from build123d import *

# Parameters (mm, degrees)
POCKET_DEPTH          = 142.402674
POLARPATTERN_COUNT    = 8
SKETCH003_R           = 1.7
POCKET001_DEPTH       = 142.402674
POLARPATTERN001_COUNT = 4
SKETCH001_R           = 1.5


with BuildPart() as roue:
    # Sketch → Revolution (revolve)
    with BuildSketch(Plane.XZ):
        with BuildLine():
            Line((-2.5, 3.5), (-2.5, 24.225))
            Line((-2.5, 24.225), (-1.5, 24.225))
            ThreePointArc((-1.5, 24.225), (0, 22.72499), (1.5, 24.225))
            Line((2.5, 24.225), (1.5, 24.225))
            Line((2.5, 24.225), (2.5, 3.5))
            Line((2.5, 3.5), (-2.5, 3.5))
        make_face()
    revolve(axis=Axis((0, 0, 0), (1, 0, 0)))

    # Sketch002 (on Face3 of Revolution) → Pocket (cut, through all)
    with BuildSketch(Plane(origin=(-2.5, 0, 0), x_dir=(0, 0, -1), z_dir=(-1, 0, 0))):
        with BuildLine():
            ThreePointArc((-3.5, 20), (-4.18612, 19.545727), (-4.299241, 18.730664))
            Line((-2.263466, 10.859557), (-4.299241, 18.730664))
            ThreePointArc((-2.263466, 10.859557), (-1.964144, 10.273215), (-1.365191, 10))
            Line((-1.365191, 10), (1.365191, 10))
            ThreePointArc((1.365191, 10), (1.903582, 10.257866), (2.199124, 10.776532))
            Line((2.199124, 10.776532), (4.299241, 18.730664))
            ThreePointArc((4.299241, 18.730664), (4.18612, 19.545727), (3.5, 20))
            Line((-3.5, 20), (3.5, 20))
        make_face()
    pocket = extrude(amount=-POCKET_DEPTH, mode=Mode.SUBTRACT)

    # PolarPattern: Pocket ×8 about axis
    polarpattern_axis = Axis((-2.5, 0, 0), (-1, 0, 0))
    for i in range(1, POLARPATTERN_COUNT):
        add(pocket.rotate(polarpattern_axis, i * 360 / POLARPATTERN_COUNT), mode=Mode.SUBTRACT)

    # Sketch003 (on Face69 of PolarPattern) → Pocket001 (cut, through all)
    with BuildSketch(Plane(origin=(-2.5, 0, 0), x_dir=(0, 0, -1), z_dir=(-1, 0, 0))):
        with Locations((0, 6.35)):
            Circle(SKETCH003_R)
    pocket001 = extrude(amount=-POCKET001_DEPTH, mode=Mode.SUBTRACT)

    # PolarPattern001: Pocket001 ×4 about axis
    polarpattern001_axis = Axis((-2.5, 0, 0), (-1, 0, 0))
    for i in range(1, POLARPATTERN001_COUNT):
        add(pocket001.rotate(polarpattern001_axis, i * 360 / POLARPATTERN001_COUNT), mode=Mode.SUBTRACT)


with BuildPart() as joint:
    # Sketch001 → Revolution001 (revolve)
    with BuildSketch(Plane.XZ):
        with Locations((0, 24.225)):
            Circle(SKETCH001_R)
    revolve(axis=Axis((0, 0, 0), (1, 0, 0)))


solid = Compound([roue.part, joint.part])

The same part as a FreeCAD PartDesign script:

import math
import FreeCAD as App
import Part
import Sketcher

V = App.Vector

doc = App.newDocument("Part")
body = doc.addObject("PartDesign::Body", "Body")

# Sketch on XZ plane
sketch1 = body.newObject("Sketcher::SketchObject", "Sketch")
sketch1.AttachmentSupport = (doc.getObject("XZ_Plane"), [""])
sketch1.MapMode = "FlatFace"
sketch1.addGeometry(Part.LineSegment(V(-2.5, 24.2, 0), V(-2.5, 3.5, 0)), False)
sketch1.addGeometry(Part.LineSegment(V(-2.5, 3.5, 0), V(2.5, 3.5, 0)), False)
sketch1.addGeometry(Part.LineSegment(V(2.5, 3.5, 0), V(2.5, 24.2, 0)), False)
sketch1.addGeometry(Part.LineSegment(V(2.5, 24.2, 0), V(1.5, 24.2, 0)), False)
sketch1.addGeometry(Part.ArcOfCircle(Part.Circle(V(0, 24.2, 0), V(0, 0, 1), 1.5), math.radians(180), math.radians(360)), False)
sketch1.addGeometry(Part.LineSegment(V(-1.5, 24.2, 0), V(-2.5, 24.2, 0)), False)
sketch1.addConstraint(Sketcher.Constraint("Coincident", 0, 2, 1, 1))
sketch1.addConstraint(Sketcher.Constraint("Coincident", 1, 2, 2, 1))
sketch1.addConstraint(Sketcher.Constraint("Coincident", 2, 2, 3, 1))
sketch1.addConstraint(Sketcher.Constraint("Coincident", 3, 2, 4, 2))
sketch1.addConstraint(Sketcher.Constraint("Coincident", 4, 1, 5, 1))
sketch1.addConstraint(Sketcher.Constraint("Coincident", 5, 2, 0, 1))
sketch1.addConstraint(Sketcher.Constraint("Vertical", 0))
sketch1.addConstraint(Sketcher.Constraint("Horizontal", 1))
sketch1.addConstraint(Sketcher.Constraint("Vertical", 2))
sketch1.addConstraint(Sketcher.Constraint("Horizontal", 3))
sketch1.addConstraint(Sketcher.Constraint("Horizontal", 5))
sketch1.addConstraint(Sketcher.Constraint("Symmetric", 3, 2, 4, 1, -2))
sketch1.addConstraint(Sketcher.Constraint("Equal", 3, 5))
sketch1.addConstraint(Sketcher.Constraint("Radius", 4, 1.5))
sketch1.addConstraint(Sketcher.Constraint("DistanceX", 1, 1, 1, 2, 5.0))
sketch1.addConstraint(Sketcher.Constraint("DistanceY", -1, 1, 0, 2, 3.5))
sketch1.addConstraint(Sketcher.Constraint("DistanceY", 0, 2, 0, 1, 20.725))
sketch1.addConstraint(Sketcher.Constraint("DistanceY", -1, 1, 4, 3, 24.22499))
revolution = body.newObject("PartDesign::Revolution", "Revolution")
revolution.Profile = sketch1
revolution.ReferenceAxis = (sketch1, ["H_Axis"])
revolution.Angle = 360

# Sketch on YZ plane
sketch2 = body.newObject("Sketcher::SketchObject", "Sketch001")
sketch2.AttachmentSupport = (doc.getObject("YZ_Plane"), [""])
sketch2.MapMode = "FlatFace"
sketch2.AttachmentOffset = App.Placement(V(0, 0, -2.5), App.Rotation())
sketch2.addGeometry(Part.ArcOfCircle(Part.Circle(V(-19, 3.3, 0), V(0, 0, 1), 1), math.radians(74), math.radians(171)), False)
sketch2.addGeometry(Part.LineSegment(V(-18.7, 4.3, 0), V(-10.9, 2.3, 0)), False)
sketch2.addGeometry(Part.ArcOfCircle(Part.Circle(V(-11, 1.3, 0), V(0, 0, 1), 1), math.radians(5), math.radians(82)), False)
sketch2.addGeometry(Part.LineSegment(V(-10, 1.4, 0), V(-10, -1.4, 0)), False)
sketch2.addGeometry(Part.ArcOfCircle(Part.Circle(V(-11, -1.2, 0), V(0, 0, 1), 1), math.radians(-78), math.radians(-8)), False)
sketch2.addGeometry(Part.LineSegment(V(-10.8, -2.2, 0), V(-18.7, -4.3, 0)), False)
sketch2.addGeometry(Part.ArcOfCircle(Part.Circle(V(-19, -3.3, 0), V(0, 0, 1), 1), math.radians(-171), math.radians(-74)), False)
sketch2.addGeometry(Part.LineSegment(V(-20, -3.5, 0), V(-20, 3.5, 0)), False)
sketch2.addConstraint(Sketcher.Constraint("Coincident", 0, 1, 1, 1))
sketch2.addConstraint(Sketcher.Constraint("Coincident", 1, 2, 2, 2))
sketch2.addConstraint(Sketcher.Constraint("Coincident", 2, 1, 3, 1))
sketch2.addConstraint(Sketcher.Constraint("Coincident", 3, 2, 4, 2))
sketch2.addConstraint(Sketcher.Constraint("Coincident", 4, 1, 5, 1))
sketch2.addConstraint(Sketcher.Constraint("Coincident", 5, 2, 6, 2))
sketch2.addConstraint(Sketcher.Constraint("Coincident", 6, 1, 7, 1))
sketch2.addConstraint(Sketcher.Constraint("Coincident", 7, 2, 0, 2))
sketch2.addConstraint(Sketcher.Constraint("Vertical", 3))
sketch2.addConstraint(Sketcher.Constraint("Vertical", 7))
sketch2.addConstraint(Sketcher.Constraint("Equal", 0, 2))
sketch2.addConstraint(Sketcher.Constraint("Equal", 2, 4))
sketch2.addConstraint(Sketcher.Constraint("Equal", 4, 6))
sketch2.addConstraint(Sketcher.Constraint("Symmetric", 0, 3, 6, 3, -1))
sketch2.addConstraint(Sketcher.Constraint("Vertical", 0, 1, 5, 2))
sketch2.addConstraint(Sketcher.Constraint("Radius", 0, 1.0))
sketch2.addConstraint(Sketcher.Constraint("DistanceY", 7, 1, 7, 2, 7.0))
sketch2.addConstraint(Sketcher.Constraint("DistanceX", 2, 1, -1, 1, 10.0))
sketch2.addConstraint(Sketcher.Constraint("DistanceX", 6, 1, -1, 1, 20.0))
sketch2.addConstraint(Sketcher.Constraint("DistanceX", 0, 3, -1, 1, 19.0129))
sketch2.addConstraint(Sketcher.Constraint("Distance", 1, 8.130111))
sketch2.addConstraint(Sketcher.Constraint("DistanceY", 3, 2, 3, 1, 2.730382))
sketch2.addConstraint(Sketcher.Constraint("DistanceX", 2, 3, -1, 1, 10.995722))
sketch2.addConstraint(Sketcher.Constraint("DistanceY", -1, 1, 2, 3, 1.272779))
sketch2.addConstraint(Sketcher.Constraint("DistanceX", 4, 3, -1, 1, 10.989711))
sketch2.addConstraint(Sketcher.Constraint("DistanceY", -1, 1, 0, 1, 4.299241))
sketch2.addConstraint(Sketcher.Constraint("DistanceX", 4, 1, -1, 1, 10.776532))
pocket1 = body.newObject("PartDesign::Pocket", "Pocket")
pocket1.Profile = sketch2
pocket1.Type = "ThroughAll"
pocket1.Reversed = True
doc.recompute()

polarpattern = body.newObject("PartDesign::PolarPattern", "PolarPattern")
polarpattern.Originals = [pocket1]
polarpattern.Axis = (doc.getObject("X_Axis"), [""])
polarpattern.Angle = 360
polarpattern.Occurrences = 8
body.Tip = polarpattern

# Sketch on YZ plane
sketch3 = body.newObject("Sketcher::SketchObject", "Sketch002")
sketch3.AttachmentSupport = (doc.getObject("YZ_Plane"), [""])
sketch3.MapMode = "FlatFace"
sketch3.AttachmentOffset = App.Placement(V(0, 0, -2.5), App.Rotation())
sketch3.addGeometry(Part.Circle(V(-6.3, 0, 0), V(0, 0, 1), 1.7), False)
sketch3.addConstraint(Sketcher.Constraint("PointOnObject", 0, 3, -1))
sketch3.addConstraint(Sketcher.Constraint("Diameter", 0, 3.4))
sketch3.addConstraint(Sketcher.Constraint("DistanceX", 0, 3, -1, 1, 6.35))
pocket2 = body.newObject("PartDesign::Pocket", "Pocket001")
pocket2.Profile = sketch3
pocket2.Type = "ThroughAll"
pocket2.Reversed = True
doc.recompute()

polarpattern2 = body.newObject("PartDesign::PolarPattern", "PolarPattern001")
polarpattern2.Originals = [pocket2]
polarpattern2.Axis = (doc.getObject("X_Axis"), [""])
polarpattern2.Angle = 360
polarpattern2.Occurrences = 4
body.Tip = polarpattern2
body2 = doc.addObject("PartDesign::Body", "Body001")

# Sketch on XZ plane
sketch4 = body2.newObject("Sketcher::SketchObject", "Sketch003")
sketch4.AttachmentSupport = (doc.getObject("XZ_Plane001"), [""])
sketch4.MapMode = "FlatFace"
sketch4.addGeometry(Part.Circle(V(0, 24.2, 0), V(0, 0, 1), 1.5), False)
sketch4.addConstraint(Sketcher.Constraint("PointOnObject", 0, 3, -2))
sketch4.addConstraint(Sketcher.Constraint("Diameter", 0, 3.0))
sketch4.addConstraint(Sketcher.Constraint("DistanceY", -1, 1, 0, 3, 24.225))
revolution2 = body2.newObject("PartDesign::Revolution", "Revolution001")
revolution2.Profile = sketch4
revolution2.ReferenceAxis = (sketch4, ["H_Axis"])
revolution2.Angle = 360

doc.recompute()
